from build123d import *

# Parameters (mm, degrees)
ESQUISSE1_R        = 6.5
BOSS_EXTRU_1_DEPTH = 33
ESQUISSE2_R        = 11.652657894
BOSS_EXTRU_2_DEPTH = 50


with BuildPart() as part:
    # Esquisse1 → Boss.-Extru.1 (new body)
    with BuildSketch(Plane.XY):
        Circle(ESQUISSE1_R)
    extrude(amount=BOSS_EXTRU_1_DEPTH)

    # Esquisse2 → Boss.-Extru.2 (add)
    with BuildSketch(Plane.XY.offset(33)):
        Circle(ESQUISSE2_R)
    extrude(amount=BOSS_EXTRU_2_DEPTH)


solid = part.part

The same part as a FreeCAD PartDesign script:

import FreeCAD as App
import Part
import Sketcher
from FreeCAD import Vector
Q = App.Units.Quantity

doc = App.newDocument("Part")
params = doc.addObject("Spreadsheet::Sheet", "Params")
for row, (alias, value) in enumerate([
    ("sketch1_diameter", "13 mm"),
    ("pad1_length", "33 mm"),
    ("pad2_length", "50 mm"),
], start=1):
    params.set(f"A{row}", alias)
    params.set(f"B{row}", "=" + value)
    params.setAlias(f"B{row}", alias)

body = doc.addObject("PartDesign::Body", "Body")

sketch1 = body.newObject("Sketcher::SketchObject", "Sketch")
sketch1.AttachmentSupport = (doc.getObject("XY_Plane"), [""])
sketch1.MapMode = "FlatFace"
sketch1.addGeometry(Part.Circle(Vector(0, 0, 0), Vector(0, 0, 1), 6), False)
sketch1.addConstraint(Sketcher.Constraint("Coincident", 0, 3, -1, 1))
sketch1.addConstraint(Sketcher.Constraint("Diameter", 0, Q("13 mm")))
sketch1.setExpression("Constraints[1]", "Params.sketch1_diameter")
pad1 = body.newObject("PartDesign::Pad", "Pad")
pad1.Profile = sketch1
pad1.setExpression("Length", "Params.pad1_length")

sketch2 = body.newObject("Sketcher::SketchObject", "Sketch001")
sketch2.AttachmentSupport = (doc.getObject("XY_Plane"), [""])
sketch2.MapMode = "FlatFace"
sketch2.AttachmentOffset = App.Placement(Vector(0, 0, 33), App.Rotation())
sketch2.addGeometry(Part.Circle(Vector(0, 0, 0), Vector(0, 0, 1), 12), False)
sketch2.addConstraint(Sketcher.Constraint("Coincident", 0, 3, -1, 1))
sketch2.addConstraint(Sketcher.Constraint("Diameter", 0, Q("23.305316 mm")))
pad2 = body.newObject("PartDesign::Pad", "Pad001")
pad2.Profile = sketch2
pad2.setExpression("Length", "Params.pad2_length")

doc.recompute()
